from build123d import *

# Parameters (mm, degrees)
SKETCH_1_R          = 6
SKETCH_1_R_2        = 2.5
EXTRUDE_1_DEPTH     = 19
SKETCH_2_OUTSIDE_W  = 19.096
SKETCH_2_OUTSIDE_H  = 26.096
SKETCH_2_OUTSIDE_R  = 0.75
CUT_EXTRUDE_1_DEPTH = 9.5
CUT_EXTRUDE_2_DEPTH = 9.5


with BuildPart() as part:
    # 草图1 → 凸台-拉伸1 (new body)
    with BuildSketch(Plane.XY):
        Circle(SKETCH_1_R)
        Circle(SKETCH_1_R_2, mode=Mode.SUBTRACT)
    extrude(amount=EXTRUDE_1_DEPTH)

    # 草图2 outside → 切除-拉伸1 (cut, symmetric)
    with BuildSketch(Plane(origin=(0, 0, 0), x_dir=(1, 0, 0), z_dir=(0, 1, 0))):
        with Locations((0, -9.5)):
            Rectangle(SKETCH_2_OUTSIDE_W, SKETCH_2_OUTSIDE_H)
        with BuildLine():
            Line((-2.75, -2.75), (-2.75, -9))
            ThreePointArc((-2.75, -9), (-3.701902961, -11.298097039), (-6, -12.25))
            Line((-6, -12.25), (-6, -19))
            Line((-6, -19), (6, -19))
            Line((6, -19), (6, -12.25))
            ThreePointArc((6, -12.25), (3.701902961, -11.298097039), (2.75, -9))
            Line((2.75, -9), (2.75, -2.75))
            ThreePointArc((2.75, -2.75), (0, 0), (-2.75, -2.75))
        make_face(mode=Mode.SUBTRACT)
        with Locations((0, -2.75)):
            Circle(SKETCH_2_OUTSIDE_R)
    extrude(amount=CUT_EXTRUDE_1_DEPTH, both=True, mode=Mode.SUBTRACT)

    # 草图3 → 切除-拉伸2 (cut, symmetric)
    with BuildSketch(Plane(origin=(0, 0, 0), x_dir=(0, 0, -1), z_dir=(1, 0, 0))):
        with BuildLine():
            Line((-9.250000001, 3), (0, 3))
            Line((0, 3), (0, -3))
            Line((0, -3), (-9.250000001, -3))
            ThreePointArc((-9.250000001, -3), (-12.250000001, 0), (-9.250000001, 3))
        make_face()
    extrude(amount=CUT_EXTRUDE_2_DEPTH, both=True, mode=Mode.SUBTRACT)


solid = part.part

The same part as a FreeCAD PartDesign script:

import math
import FreeCAD as App
import Part
import Sketcher
from FreeCAD import Vector


def add_polygon(sketch, points):
    """Adds a closed chain of lines whose ends are joined by coincident constraints."""
    first, n = sketch.GeometryCount, len(points)
    for a, b in zip(points, points[1:] + points[:1]):
        sketch.addGeometry(Part.LineSegment(App.Vector(*a, 0), App.Vector(*b, 0)), False)
    for i in range(n):
        sketch.addConstraint(Sketcher.Constraint("Coincident", first + i, 2, first + (i + 1) % n, 1))

doc = App.newDocument("Part")
body = doc.addObject("PartDesign::Body", "Body")

# Sketch on XY plane
sketch1 = body.newObject("Sketcher::SketchObject", "Sketch")
sketch1.AttachmentSupport = (doc.getObject("XY_Plane"), [""])
sketch1.MapMode = "FlatFace"
sketch1.addGeometry([
    Part.Circle(Vector(0, 0, 0), Vector(0, 0, 1), 6),
    Part.Circle(Vector(0, 0, 0), Vector(0, 0, 1), 2.5),
], False)
sketch1.addConstraint([
    Sketcher.Constraint("Coincident", 0, 3, -1, 1),
    Sketcher.Constraint("Coincident", 1, 3, -1, 1),
    Sketcher.Constraint("Diameter", 0, 12.0),
    Sketcher.Constraint("Diameter", 1, 5.0),
])
pad1 = body.newObject("PartDesign::Pad", "Pad")
pad1.Profile = sketch1
pad1.Length = 19

# Sketch on XZ plane
sketch2 = body.newObject("Sketcher::SketchObject", "Sketch001")
sketch2.AttachmentSupport = (doc.getObject("XZ_Plane"), [""])
sketch2.MapMode = "FlatFace"
add_polygon(sketch2, [(-9.5, -3.5), (-9.5, 22.5), (9.5, 22.5), (9.5, -3.5)])  # lines 0-3
sketch2.addGeometry(Part.LineSegment(Vector(-2.8, 9, 0), Vector(-2.8, 2.8, 0)), False)  # 4
sketch2.addGeometry(Part.ArcOfCircle(Part.Circle(Vector(0, 2.8, 0), Vector(0, 0, 1), 2.8), math.radians(180), math.radians(360)), False)  # 5
sketch2.addGeometry(Part.LineSegment(Vector(2.8, 2.8, 0), Vector(2.8, 9, 0)), False)  # 6
sketch2.addGeometry(Part.ArcOfCircle(Part.Circle(Vector(6, 9, 0), Vector(0, 0, 1), 3.2), math.radians(90), math.radians(180)), False)  # 7
sketch2.addGeometry(Part.LineSegment(Vector(6, 12.2, 0), Vector(6, 19, 0)), False)  # 8
sketch2.addGeometry(Part.LineSegment(Vector(6, 19, 0), Vector(-6, 19, 0)), False)  # 9
sketch2.addGeometry(Part.LineSegment(Vector(-6, 19, 0), Vector(-6, 12.2, 0)), False)  # 10
sketch2.addGeometry(Part.ArcOfCircle(Part.Circle(Vector(-6, 9, 0), Vector(0, 0, 1), 3.2), math.radians(0), math.radians(90)), False)  # 11
sketch2.addGeometry(Part.Circle(Vector(0, 2.8, 0), Vector(0, 0, 1), 0.8), False)  # 12
sketch2.addConstraint([
    Sketcher.Constraint("Tangent", 4, 2, 5, 1),
    Sketcher.Constraint("Tangent", 5, 2, 6, 1),
    Sketcher.Constraint("Tangent", 6, 2, 7, 2),
    Sketcher.Constraint("Coincident", 7, 1, 8, 1),
    Sketcher.Constraint("Coincident", 8, 2, 9, 1),
    Sketcher.Constraint("Coincident", 9, 2, 10, 1),
    Sketcher.Constraint("Coincident", 10, 2, 11, 2),
    Sketcher.Constraint("Tangent", 11, 1, 4, 1),
    Sketcher.Constraint("Vertical", 0),
    Sketcher.Constraint("Horizontal", 1),
    Sketcher.Constraint("Vertical", 2),
    Sketcher.Constraint("Horizontal", 3),
    Sketcher.Constraint("Vertical", 4),
    Sketcher.Constraint("Vertical", 6),
    Sketcher.Constraint("Vertical", 8),
    Sketcher.Constraint("Horizontal", 9),
    Sketcher.Constraint("Vertical", 10),
    Sketcher.Constraint("Coincident", 12, 3, 5, 3),
    Sketcher.Constraint("Equal", 7, 11),
    Sketcher.Constraint("Symmetric", 7, 3, 11, 3, -2),
    Sketcher.Constraint("Vertical", 11, 3, 9, 2),
    Sketcher.Constraint("Diameter", 12, 1.5),
    Sketcher.Constraint("DistanceX", 9, 2, 9, 1, 12.0),
    Sketcher.Constraint("Radius", 5, 2.75),
    Sketcher.Constraint("Radius", 7, 3.25),
    Sketcher.Constraint("DistanceY", -1, 1, 7, 3, 9.0),
    Sketcher.Constraint("DistanceY", -1, 1, 8, 2, 19.0),
    Sketcher.Constraint("DistanceY", 4, 2, 4, 1, 6.25),
    Sketcher.Constraint("DistanceX", 1, 1, 1, 2, 19.096),
    Sketcher.Constraint("DistanceY", 0, 1, 0, 2, 26.096),
    Sketcher.Constraint("DistanceX", 0, 2, -1, 1, 9.548),
    Sketcher.Constraint("DistanceY", -1, 1, 0, 2, 22.548),
])
pocket1 = body.newObject("PartDesign::Pocket", "Pocket")
pocket1.Profile = sketch2
pocket1.Length = 19
pocket1.Midplane = True

# Sketch on YZ plane
sketch3 = body.newObject("Sketcher::SketchObject", "Sketch002")
sketch3.AttachmentSupport = (doc.getObject("YZ_Plane"), [""])
sketch3.MapMode = "FlatFace"
sketch3.addGeometry([
    Part.LineSegment(Vector(3, 0, 0), Vector(3, 9.3, 0)),
    Part.ArcOfCircle(Part.Circle(Vector(0, 9.3, 0), Vector(0, 0, 1), 3), math.radians(0), math.radians(180)),
    Part.LineSegment(Vector(-3, 9.3, 0), Vector(-3, 0, 0)),
    Part.LineSegment(Vector(-3, 0, 0), Vector(3, 0, 0)),
], False)
sketch3.addConstraint([
    Sketcher.Constraint("Tangent", 0, 2, 1, 1),
    Sketcher.Constraint("Tangent", 1, 2, 2, 1),
    Sketcher.Constraint("Coincident", 2, 2, 3, 1),
    Sketcher.Constraint("Coincident", 3, 2, 0, 1),
    Sketcher.Constraint("Vertical", 0),
    Sketcher.Constraint("Vertical", 2),
    Sketcher.Constraint("Horizontal", 3),
    Sketcher.Constraint("Symmetric", 2, 2, 3, 2, -1, 1),
    Sketcher.Constraint("Radius", 1, 3.0),
    Sketcher.Constraint("DistanceY", 0, 1, 0, 2, 9.25),
])
pocket2 = body.newObject("PartDesign::Pocket", "Pocket001")
pocket2.Profile = sketch3
pocket2.Length = 19
pocket2.Midplane = True

doc.recompute()
